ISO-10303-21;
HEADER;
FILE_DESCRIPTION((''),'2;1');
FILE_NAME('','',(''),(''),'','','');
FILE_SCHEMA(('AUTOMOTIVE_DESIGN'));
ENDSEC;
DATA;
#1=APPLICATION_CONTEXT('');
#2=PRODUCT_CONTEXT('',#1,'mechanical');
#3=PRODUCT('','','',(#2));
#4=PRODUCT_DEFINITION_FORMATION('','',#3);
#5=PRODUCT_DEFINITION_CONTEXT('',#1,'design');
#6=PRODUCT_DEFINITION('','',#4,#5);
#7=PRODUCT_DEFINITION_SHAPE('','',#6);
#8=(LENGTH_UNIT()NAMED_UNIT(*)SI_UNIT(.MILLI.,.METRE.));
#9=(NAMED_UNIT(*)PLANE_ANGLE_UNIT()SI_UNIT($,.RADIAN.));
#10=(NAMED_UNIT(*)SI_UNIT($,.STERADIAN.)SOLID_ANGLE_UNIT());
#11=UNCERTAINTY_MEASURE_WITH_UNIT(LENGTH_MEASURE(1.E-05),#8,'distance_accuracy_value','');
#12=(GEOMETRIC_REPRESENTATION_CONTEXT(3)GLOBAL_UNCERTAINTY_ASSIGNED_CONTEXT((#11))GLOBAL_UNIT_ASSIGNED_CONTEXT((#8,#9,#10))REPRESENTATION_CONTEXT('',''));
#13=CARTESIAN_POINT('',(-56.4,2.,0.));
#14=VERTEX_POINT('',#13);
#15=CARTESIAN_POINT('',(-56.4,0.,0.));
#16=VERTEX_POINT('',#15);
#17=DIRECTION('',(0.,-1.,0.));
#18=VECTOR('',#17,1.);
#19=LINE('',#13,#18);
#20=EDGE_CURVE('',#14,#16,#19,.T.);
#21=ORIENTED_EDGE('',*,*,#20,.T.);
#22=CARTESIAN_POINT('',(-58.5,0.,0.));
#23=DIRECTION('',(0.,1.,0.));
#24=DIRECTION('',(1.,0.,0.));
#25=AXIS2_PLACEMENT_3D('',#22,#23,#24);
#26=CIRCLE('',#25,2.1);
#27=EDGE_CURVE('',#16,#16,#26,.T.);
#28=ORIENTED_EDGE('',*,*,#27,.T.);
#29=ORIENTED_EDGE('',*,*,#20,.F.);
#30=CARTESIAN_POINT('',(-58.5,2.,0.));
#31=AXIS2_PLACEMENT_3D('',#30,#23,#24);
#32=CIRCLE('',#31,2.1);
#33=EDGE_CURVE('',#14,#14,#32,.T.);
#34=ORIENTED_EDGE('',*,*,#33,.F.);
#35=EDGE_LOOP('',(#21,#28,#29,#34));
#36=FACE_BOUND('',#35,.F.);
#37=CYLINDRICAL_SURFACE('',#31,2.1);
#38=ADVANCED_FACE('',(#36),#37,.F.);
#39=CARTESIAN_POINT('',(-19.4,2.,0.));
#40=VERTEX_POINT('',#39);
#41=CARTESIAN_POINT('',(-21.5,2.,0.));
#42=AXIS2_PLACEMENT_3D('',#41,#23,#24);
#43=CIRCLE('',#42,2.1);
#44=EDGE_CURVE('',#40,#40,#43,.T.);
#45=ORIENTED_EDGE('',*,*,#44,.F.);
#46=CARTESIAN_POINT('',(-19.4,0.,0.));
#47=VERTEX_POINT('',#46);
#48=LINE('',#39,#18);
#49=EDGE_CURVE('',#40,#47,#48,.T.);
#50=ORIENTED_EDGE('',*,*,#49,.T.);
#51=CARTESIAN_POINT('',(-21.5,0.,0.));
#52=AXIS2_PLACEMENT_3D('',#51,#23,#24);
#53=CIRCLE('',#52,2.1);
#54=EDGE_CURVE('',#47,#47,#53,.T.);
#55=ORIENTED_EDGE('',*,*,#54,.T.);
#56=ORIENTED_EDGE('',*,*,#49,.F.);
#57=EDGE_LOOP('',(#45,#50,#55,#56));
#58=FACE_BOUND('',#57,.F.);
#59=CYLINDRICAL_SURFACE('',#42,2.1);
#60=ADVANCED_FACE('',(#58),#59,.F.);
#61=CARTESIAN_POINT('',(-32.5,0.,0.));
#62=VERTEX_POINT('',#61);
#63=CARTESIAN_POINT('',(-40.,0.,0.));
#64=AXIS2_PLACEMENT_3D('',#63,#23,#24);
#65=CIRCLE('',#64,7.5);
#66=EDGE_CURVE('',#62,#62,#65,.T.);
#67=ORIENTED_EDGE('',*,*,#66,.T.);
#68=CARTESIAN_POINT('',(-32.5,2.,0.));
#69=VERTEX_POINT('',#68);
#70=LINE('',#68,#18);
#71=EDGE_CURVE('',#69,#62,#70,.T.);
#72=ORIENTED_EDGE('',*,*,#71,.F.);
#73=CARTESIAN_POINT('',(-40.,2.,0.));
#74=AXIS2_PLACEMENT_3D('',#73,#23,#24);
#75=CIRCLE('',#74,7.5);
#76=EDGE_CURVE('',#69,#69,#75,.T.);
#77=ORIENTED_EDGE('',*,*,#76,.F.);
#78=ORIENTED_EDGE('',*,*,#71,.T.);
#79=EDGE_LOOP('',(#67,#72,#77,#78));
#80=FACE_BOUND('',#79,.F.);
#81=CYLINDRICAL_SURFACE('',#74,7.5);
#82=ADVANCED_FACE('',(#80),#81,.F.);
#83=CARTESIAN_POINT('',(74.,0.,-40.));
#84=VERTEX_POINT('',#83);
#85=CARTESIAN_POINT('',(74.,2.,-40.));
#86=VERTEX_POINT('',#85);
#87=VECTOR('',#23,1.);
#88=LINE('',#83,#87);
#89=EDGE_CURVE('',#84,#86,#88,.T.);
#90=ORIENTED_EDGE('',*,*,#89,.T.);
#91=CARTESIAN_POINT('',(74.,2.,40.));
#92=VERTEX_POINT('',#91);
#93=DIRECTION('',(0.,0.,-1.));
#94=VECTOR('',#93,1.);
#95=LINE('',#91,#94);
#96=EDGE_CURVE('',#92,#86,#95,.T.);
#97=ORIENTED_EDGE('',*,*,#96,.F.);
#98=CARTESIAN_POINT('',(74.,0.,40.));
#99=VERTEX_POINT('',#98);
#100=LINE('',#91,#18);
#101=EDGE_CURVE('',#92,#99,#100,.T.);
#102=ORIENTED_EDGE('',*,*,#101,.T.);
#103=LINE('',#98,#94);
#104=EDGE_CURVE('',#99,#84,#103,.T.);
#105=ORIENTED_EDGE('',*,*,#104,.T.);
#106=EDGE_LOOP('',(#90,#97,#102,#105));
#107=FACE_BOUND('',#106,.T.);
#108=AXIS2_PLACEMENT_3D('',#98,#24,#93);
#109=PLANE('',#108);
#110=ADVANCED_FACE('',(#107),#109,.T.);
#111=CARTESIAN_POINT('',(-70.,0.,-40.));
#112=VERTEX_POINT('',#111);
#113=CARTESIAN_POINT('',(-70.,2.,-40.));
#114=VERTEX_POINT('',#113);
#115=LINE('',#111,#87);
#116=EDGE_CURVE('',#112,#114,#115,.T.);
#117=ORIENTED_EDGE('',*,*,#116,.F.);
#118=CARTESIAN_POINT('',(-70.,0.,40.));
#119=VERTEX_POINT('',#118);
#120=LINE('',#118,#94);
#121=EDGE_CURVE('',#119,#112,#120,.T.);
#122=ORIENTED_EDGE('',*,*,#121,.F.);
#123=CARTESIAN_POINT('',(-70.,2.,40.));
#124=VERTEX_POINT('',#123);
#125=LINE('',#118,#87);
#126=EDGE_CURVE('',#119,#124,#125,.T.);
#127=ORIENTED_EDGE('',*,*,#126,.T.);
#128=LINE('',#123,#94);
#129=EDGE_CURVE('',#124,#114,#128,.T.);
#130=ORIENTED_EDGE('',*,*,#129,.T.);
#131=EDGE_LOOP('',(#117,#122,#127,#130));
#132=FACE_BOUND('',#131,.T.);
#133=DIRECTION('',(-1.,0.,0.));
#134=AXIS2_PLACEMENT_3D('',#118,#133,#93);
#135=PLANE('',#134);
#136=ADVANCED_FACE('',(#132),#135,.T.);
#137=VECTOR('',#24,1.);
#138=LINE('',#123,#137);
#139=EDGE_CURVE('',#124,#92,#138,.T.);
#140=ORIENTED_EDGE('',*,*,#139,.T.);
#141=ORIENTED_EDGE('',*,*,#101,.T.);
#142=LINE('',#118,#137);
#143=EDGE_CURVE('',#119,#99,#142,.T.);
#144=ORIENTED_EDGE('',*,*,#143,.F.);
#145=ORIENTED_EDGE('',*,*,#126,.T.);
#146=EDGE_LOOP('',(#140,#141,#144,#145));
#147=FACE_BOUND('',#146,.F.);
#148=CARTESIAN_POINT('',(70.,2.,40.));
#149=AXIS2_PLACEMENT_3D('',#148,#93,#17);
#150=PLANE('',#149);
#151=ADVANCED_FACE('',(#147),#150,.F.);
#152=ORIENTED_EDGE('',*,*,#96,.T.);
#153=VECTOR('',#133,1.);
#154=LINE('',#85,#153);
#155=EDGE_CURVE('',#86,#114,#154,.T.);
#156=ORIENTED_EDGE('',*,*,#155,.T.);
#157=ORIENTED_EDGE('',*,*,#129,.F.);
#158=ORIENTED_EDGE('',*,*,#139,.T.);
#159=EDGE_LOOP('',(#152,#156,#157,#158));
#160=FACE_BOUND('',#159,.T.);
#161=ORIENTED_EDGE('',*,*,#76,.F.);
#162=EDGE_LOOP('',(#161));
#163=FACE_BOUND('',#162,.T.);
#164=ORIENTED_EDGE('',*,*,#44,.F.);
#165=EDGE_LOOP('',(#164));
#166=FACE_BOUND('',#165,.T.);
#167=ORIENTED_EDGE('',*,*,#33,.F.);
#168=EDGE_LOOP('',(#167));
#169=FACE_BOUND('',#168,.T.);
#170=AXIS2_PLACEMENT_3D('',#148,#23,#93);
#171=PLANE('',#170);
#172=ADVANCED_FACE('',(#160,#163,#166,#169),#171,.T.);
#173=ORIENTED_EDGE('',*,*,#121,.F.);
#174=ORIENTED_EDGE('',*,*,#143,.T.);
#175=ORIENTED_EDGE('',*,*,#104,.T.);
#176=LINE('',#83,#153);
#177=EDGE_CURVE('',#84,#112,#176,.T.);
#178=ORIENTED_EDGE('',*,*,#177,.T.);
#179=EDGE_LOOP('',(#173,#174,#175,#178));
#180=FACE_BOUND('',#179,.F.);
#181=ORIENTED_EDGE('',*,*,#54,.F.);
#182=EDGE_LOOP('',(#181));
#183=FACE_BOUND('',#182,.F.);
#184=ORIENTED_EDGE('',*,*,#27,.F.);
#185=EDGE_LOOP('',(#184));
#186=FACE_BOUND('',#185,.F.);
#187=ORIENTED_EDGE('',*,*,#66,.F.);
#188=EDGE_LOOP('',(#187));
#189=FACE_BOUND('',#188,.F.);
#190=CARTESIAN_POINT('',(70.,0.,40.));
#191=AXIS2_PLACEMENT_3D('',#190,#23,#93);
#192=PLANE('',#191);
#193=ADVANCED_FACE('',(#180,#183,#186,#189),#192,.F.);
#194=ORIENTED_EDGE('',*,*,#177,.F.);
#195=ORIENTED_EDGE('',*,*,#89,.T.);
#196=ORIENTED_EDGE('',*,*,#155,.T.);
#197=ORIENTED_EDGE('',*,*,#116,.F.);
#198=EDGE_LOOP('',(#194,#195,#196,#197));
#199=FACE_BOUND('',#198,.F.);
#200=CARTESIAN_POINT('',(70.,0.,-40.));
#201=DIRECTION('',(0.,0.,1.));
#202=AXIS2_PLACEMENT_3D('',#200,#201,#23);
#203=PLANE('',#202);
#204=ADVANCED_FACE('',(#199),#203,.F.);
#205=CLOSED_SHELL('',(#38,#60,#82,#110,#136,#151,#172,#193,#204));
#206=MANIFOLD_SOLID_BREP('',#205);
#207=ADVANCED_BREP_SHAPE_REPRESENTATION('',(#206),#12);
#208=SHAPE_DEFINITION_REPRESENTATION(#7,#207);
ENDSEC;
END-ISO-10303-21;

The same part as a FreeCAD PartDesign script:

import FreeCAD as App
import Part
import Sketcher
Q = App.Units.Quantity


def add_polygon(sketch, points):
    """Adds a closed chain of lines whose ends are joined by coincident constraints."""
    first, n = sketch.GeometryCount, len(points)
    for a, b in zip(points, points[1:] + points[:1]):
        sketch.addGeometry(Part.LineSegment(App.Vector(*a, 0), App.Vector(*b, 0)), False)
    for i in range(n):
        sketch.addConstraint(Sketcher.Constraint("Coincident", first + i, 2, first + (i + 1) % n, 1))

doc = App.newDocument("Part")
body = doc.addObject("PartDesign::Body", "Body")

sketch1 = body.newObject("Sketcher::SketchObject", "Sketch")
sketch1.AttachmentSupport = (doc.getObject("XZ_Plane"), [""])
sketch1.MapMode = "FlatFace"
add_polygon(sketch1, [(-70, 40), (70, 40), (70, -40), (-70, -40)])
sketch1.addConstraint([
    Sketcher.Constraint("Horizontal", 0),
    Sketcher.Constraint("Vertical", 1),
    Sketcher.Constraint("Horizontal", 2),
    Sketcher.Constraint("Vertical", 3),
    Sketcher.Constraint("Symmetric", 0, 2, 2, 2, -1, 1),
    Sketcher.Constraint("DistanceX", 0, 1, 0, 2, Q("140 mm")),
    Sketcher.Constraint("DistanceY", 1, 2, 1, 1, Q("80 mm")),
])
pad1 = body.newObject("PartDesign::Pad", "Pad")
pad1.Profile = sketch1
pad1.Length = 2
pad1.Reversed = True

sketch2 = body.newObject("Sketcher::SketchObject", "Sketch001")
sketch2.AttachmentSupport = (doc.getObject("XZ_Plane"), [""])
sketch2.MapMode = "FlatFace"
sketch2.AttachmentOffset = App.Placement(App.Vector(0, 0, -2), App.Rotation())
sketch2.addGeometry([
    Part.Circle(App.Vector(-40, 0, 0), App.Vector(0, 0, 1), 7.5),
    Part.Circle(App.Vector(-58.5, 0, 0), App.Vector(0, 0, 1), 2.1),
    Part.Circle(App.Vector(-21.5, 0, 0), App.Vector(0, 0, 1), 2.1),
], False)
sketch2.addConstraint([
    Sketcher.Constraint("Equal", 1, 2),
    Sketcher.Constraint("PointOnObject", 0, 3, -1),
    Sketcher.Constraint("PointOnObject", 1, 3, -1),
    Sketcher.Constraint("PointOnObject", 2, 3, -1),
    Sketcher.Constraint("Diameter", 0, Q("15 mm")),
    Sketcher.Constraint("Diameter", 1, Q("4.2 mm")),
    Sketcher.Constraint("DistanceX", 1, 3, 2, 3, Q("37 mm")),
    Sketcher.Constraint("DistanceX", 1, 3, 0, 3, Q("18.5 mm")),
    Sketcher.Constraint("DistanceX", 0, 3, -1, 1, Q("40 mm")),
])
pocket1 = body.newObject("PartDesign::Pocket", "Pocket")
pocket1.Profile = sketch2
pocket1.Length = 8
pocket1.Reversed = True

sketch3 = body.newObject("Sketcher::SketchObject", "Sketch002")
sketch3.AttachmentSupport = (doc.getObject("YZ_Plane"), [""])
sketch3.MapMode = "FlatFace"
sketch3.AttachmentOffset = App.Placement(App.Vector(0, 0, 70), App.Rotation())
add_polygon(sketch3, [(2, -40), (2, 40), (0, 40), (0, -40)])
sketch3.addConstraint([
    Sketcher.Constraint("Vertical", 0),
    Sketcher.Constraint("Horizontal", 1),
    Sketcher.Constraint("Vertical", 2),
    Sketcher.Constraint("Horizontal", 3),
    Sketcher.Constraint("Symmetric", 1, 2, 2, 2, -1, 1),
    Sketcher.Constraint("DistanceX", 1, 2, 1, 1, Q("2 mm")),
    Sketcher.Constraint("DistanceY", 0, 1, 0, 2, Q("80 mm")),
])
pad2 = body.newObject("PartDesign::Pad", "Pad001")
pad2.Profile = sketch3
pad2.Length = 4

doc.recompute()
